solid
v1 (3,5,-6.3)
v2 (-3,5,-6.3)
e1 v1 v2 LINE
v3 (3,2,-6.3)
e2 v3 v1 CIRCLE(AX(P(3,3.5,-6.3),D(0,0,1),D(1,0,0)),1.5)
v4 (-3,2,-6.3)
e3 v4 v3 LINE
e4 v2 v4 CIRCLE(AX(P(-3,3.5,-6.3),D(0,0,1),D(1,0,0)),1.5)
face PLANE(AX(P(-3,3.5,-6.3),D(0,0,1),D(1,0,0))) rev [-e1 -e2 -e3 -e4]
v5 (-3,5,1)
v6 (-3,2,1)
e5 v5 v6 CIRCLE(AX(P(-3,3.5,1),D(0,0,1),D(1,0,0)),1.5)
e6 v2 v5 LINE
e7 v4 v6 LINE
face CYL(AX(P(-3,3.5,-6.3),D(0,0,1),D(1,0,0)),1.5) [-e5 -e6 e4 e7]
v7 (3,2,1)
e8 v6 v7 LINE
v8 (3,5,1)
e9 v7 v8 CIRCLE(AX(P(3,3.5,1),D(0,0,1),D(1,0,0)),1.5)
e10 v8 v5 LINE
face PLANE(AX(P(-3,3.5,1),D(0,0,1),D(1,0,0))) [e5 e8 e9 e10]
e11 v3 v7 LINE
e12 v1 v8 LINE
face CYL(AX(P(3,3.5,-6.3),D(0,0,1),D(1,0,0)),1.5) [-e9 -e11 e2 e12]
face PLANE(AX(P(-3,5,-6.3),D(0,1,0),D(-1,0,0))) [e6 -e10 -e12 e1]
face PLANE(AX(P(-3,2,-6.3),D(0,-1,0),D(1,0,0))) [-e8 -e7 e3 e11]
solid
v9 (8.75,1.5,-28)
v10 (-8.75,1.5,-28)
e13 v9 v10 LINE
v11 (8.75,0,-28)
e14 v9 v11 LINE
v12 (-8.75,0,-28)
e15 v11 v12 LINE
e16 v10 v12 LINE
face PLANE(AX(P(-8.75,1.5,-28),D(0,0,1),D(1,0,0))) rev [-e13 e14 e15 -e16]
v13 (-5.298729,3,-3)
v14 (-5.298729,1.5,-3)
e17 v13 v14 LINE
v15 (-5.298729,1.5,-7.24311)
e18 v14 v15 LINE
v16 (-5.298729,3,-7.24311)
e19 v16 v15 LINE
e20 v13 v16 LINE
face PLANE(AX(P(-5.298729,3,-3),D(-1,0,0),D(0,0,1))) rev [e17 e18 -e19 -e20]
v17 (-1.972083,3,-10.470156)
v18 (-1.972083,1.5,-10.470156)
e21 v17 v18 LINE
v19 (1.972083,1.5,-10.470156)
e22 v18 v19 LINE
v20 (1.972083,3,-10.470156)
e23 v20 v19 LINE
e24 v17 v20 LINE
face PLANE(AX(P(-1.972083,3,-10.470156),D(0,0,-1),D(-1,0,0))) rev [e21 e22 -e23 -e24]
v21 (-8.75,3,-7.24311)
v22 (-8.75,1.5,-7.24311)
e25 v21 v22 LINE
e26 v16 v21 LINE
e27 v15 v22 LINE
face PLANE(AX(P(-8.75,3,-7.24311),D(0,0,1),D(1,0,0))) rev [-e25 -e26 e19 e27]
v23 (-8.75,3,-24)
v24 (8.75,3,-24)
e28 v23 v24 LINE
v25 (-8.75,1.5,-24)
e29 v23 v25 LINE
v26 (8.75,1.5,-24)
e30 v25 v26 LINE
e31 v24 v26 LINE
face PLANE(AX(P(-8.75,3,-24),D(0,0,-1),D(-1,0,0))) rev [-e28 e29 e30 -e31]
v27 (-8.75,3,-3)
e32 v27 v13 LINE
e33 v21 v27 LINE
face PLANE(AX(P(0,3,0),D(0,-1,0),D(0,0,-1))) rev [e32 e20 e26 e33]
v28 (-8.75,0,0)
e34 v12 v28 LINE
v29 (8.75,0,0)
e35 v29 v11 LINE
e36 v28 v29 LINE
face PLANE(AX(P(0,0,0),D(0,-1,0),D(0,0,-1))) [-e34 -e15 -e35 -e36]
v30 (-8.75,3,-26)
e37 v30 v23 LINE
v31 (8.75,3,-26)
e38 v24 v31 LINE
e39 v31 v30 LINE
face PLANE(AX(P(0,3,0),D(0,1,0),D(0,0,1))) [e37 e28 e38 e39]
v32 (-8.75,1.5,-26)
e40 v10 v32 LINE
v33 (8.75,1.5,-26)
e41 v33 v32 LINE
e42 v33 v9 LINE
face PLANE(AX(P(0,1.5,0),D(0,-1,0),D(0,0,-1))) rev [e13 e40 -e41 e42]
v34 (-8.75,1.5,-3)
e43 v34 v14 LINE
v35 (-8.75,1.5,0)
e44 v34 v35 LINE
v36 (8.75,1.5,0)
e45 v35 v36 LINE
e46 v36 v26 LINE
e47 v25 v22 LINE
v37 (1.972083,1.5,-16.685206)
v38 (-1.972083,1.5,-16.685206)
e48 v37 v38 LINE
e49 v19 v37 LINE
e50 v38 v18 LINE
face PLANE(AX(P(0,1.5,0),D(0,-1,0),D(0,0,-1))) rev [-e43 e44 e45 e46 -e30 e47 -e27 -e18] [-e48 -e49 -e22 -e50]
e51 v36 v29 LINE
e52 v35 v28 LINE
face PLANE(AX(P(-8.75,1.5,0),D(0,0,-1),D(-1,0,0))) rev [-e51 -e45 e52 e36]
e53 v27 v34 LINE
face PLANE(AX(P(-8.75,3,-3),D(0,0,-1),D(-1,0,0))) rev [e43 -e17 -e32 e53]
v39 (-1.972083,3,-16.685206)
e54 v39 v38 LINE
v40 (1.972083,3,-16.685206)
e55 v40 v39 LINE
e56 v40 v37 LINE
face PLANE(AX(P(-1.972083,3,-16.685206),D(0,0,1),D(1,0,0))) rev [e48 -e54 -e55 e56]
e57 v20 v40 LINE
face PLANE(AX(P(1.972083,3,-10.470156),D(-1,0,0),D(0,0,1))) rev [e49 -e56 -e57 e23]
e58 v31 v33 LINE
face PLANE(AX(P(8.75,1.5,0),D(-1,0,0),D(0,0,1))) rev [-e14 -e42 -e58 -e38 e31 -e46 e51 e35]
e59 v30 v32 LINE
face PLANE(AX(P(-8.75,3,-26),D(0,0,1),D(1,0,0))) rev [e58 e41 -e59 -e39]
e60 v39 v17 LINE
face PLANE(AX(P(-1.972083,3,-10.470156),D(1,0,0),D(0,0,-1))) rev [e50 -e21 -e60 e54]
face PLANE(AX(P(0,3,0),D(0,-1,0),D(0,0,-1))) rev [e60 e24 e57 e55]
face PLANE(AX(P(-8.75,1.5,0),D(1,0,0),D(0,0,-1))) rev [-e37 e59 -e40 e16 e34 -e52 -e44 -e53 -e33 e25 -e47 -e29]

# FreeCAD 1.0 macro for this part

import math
import FreeCAD as App
import Part
import Sketcher
from FreeCAD import Vector


def add_polygon(sketch, points):
    """Adds a closed chain of lines whose ends are joined by coincident constraints."""
    first, n = sketch.GeometryCount, len(points)
    for a, b in zip(points, points[1:] + points[:1]):
        sketch.addGeometry(Part.LineSegment(App.Vector(*a, 0), App.Vector(*b, 0)), False)
    for i in range(n):
        sketch.addConstraint(Sketcher.Constraint("Coincident", first + i, 2, first + (i + 1) % n, 1))

doc = App.newDocument("Part")
params = doc.addObject("Spreadsheet::Sheet", "Params")
for row, (alias, value) in enumerate([
    ("sketch1_height", "28 mm"),
    ("sketch1_width", "17.5 mm"),
    ("pad1_length", "1.5 mm"),
    ("sketch2_height", "2 mm"),
    ("sketch2_width", "17.5 mm"),
    ("pad2_length", "3 mm"),
    ("sketch3_radius", "1.5 mm"),
    ("sketch3_width", "6 mm"),
    ("pad3_length", "7.3 mm"),
], start=1):
    params.set(f"A{row}", alias)
    params.set(f"B{row}", "=" + value)
    params.setAlias(f"B{row}", alias)

body = doc.addObject("PartDesign::Body", "Body")

# Sketch on XZ plane
sketch1 = body.newObject("Sketcher::SketchObject", "Sketch")
sketch1.AttachmentSupport = (doc.getObject("XZ_Plane"), [""])
sketch1.MapMode = "FlatFace"
add_polygon(sketch1, [(-9, -28), (-9, 0), (9, 0), (9, -28)])  # lines 0-3
sketch1.addConstraint(Sketcher.Constraint("Vertical", 0))
sketch1.addConstraint(Sketcher.Constraint("Horizontal", 1))
sketch1.addConstraint(Sketcher.Constraint("Vertical", 2))
sketch1.addConstraint(Sketcher.Constraint("Horizontal", 3))
sketch1.addConstraint(Sketcher.Constraint("Symmetric", 0, 2, 1, 2, -1, 1))
sketch1.addConstraint(Sketcher.Constraint("DistanceY", 0, 1, 0, 2, 28.0))
sketch1.addConstraint(Sketcher.Constraint("DistanceX", 1, 1, 1, 2, 17.5))
sketch1.setExpression("Constraints[9]", "Params.sketch1_height")
sketch1.setExpression("Constraints[10]", "Params.sketch1_width")
pad1 = body.newObject("PartDesign::Pad", "Pad")
pad1.Profile = sketch1
pad1.setExpression("Length", "Params.pad1_length")
pad1.Reversed = True

# Sketch on XZ plane
sketch2 = body.newObject("Sketcher::SketchObject", "Sketch001")
sketch2.AttachmentSupport = (doc.getObject("XZ_Plane"), [""])
sketch2.MapMode = "FlatFace"
add_polygon(sketch2, [(-2, -16.7), (-2, -10.5), (2, -10.5), (2, -16.7)])  # lines 0-3
add_polygon(sketch2, [(-8.8, -7.2), (-8.8, -3), (-5.3, -3), (-5.3, -7.2)])  # lines 4-7
add_polygon(sketch2, [(-8.8, -26), (-8.8, -24), (8.8, -24), (8.8, -26)])  # lines 8-11
sketch2.addConstraint(Sketcher.Constraint("Vertical", 0))
sketch2.addConstraint(Sketcher.Constraint("Horizontal", 1))
sketch2.addConstraint(Sketcher.Constraint("Vertical", 2))
sketch2.addConstraint(Sketcher.Constraint("Horizontal", 3))
sketch2.addConstraint(Sketcher.Constraint("Vertical", 4))
sketch2.addConstraint(Sketcher.Constraint("Horizontal", 5))
sketch2.addConstraint(Sketcher.Constraint("Vertical", 6))
sketch2.addConstraint(Sketcher.Constraint("Horizontal", 7))
sketch2.addConstraint(Sketcher.Constraint("Vertical", 8))
sketch2.addConstraint(Sketcher.Constraint("Horizontal", 9))
sketch2.addConstraint(Sketcher.Constraint("Vertical", 10))
sketch2.addConstraint(Sketcher.Constraint("Horizontal", 11))
sketch2.addConstraint(Sketcher.Constraint("Vertical", 7, 2, 8, 2))
sketch2.addConstraint(Sketcher.Constraint("DistanceY", 8, 1, 8, 2, 2.0))
sketch2.addConstraint(Sketcher.Constraint("DistanceX", 9, 1, 9, 2, 17.5))
sketch2.addConstraint(Sketcher.Constraint("DistanceY", 4, 2, -1, 1, 3.0))
sketch2.addConstraint(Sketcher.Constraint("DistanceY", 8, 2, -1, 1, 24.0))
sketch2.addConstraint(Sketcher.Constraint("DistanceX", 4, 2, -1, 1, 8.75))
sketch2.addConstraint(Sketcher.Constraint("DistanceX", 5, 1, 5, 2, 3.451271))
sketch2.addConstraint(Sketcher.Constraint("DistanceY", 0, 1, 0, 2, 6.21505))
sketch2.addConstraint(Sketcher.Constraint("DistanceY", 4, 1, 4, 2, 4.24311))
sketch2.addConstraint(Sketcher.Constraint("DistanceX", 1, 1, 1, 2, 3.944167))
sketch2.addConstraint(Sketcher.Constraint("DistanceX", 0, 2, -1, 1, 1.972083))
sketch2.addConstraint(Sketcher.Constraint("DistanceY", 0, 2, -1, 1, 10.470156))
sketch2.setExpression("Constraints[25]", "Params.sketch2_height")
sketch2.setExpression("Constraints[26]", "Params.sketch2_width")
pad2 = body.newObject("PartDesign::Pad", "Pad001")
pad2.Profile = sketch2
pad2.setExpression("Length", "Params.pad2_length")
pad2.Reversed = True
body2 = doc.addObject("PartDesign::Body", "Body001")

# Sketch on XY plane
sketch3 = body2.newObject("Sketcher::SketchObject", "Sketch002")
sketch3.AttachmentSupport = (doc.getObject("XY_Plane001"), [""])
sketch3.MapMode = "FlatFace"
sketch3.AttachmentOffset = App.Placement(Vector(0, 0, 1), App.Rotation())
sketch3.addGeometry(Part.LineSegment(Vector(3, 5, 0), Vector(-3, 5, 0)), False)
sketch3.addGeometry(Part.ArcOfCircle(Part.Circle(Vector(-3, 3.5, 0), Vector(0, 0, 1), 1.5), math.radians(90), math.radians(270)), False)
sketch3.addGeometry(Part.LineSegment(Vector(-3, 2, 0), Vector(3, 2, 0)), False)
sketch3.addGeometry(Part.ArcOfCircle(Part.Circle(Vector(3, 3.5, 0), Vector(0, 0, 1), 1.5), math.radians(-90), math.radians(90)), False)
sketch3.addConstraint(Sketcher.Constraint("Tangent", 0, 2, 1, 1))
sketch3.addConstraint(Sketcher.Constraint("Tangent", 1, 2, 2, 1))
sketch3.addConstraint(Sketcher.Constraint("Tangent", 2, 2, 3, 1))
sketch3.addConstraint(Sketcher.Constraint("Tangent", 3, 2, 0, 1))
sketch3.addConstraint(Sketcher.Constraint("Horizontal", 0))
sketch3.addConstraint(Sketcher.Constraint("Horizontal", 2))
sketch3.addConstraint(Sketcher.Constraint("Radius", 1, 1.5))
sketch3.addConstraint(Sketcher.Constraint("DistanceX", 0, 2, 0, 1, 6.0))
sketch3.addConstraint(Sketcher.Constraint("DistanceX", 1, 3, -1, 1, 3.0))
sketch3.addConstraint(Sketcher.Constraint("DistanceY", -1, 1, 0, 2, 5.0))
sketch3.setExpression("Constraints[6]", "Params.sketch3_radius")
sketch3.setExpression("Constraints[7]", "Params.sketch3_width")
pad3 = body2.newObject("PartDesign::Pad", "Pad002")
pad3.Profile = sketch3
pad3.setExpression("Length", "Params.pad3_length")
pad3.Reversed = True

doc.recompute()
